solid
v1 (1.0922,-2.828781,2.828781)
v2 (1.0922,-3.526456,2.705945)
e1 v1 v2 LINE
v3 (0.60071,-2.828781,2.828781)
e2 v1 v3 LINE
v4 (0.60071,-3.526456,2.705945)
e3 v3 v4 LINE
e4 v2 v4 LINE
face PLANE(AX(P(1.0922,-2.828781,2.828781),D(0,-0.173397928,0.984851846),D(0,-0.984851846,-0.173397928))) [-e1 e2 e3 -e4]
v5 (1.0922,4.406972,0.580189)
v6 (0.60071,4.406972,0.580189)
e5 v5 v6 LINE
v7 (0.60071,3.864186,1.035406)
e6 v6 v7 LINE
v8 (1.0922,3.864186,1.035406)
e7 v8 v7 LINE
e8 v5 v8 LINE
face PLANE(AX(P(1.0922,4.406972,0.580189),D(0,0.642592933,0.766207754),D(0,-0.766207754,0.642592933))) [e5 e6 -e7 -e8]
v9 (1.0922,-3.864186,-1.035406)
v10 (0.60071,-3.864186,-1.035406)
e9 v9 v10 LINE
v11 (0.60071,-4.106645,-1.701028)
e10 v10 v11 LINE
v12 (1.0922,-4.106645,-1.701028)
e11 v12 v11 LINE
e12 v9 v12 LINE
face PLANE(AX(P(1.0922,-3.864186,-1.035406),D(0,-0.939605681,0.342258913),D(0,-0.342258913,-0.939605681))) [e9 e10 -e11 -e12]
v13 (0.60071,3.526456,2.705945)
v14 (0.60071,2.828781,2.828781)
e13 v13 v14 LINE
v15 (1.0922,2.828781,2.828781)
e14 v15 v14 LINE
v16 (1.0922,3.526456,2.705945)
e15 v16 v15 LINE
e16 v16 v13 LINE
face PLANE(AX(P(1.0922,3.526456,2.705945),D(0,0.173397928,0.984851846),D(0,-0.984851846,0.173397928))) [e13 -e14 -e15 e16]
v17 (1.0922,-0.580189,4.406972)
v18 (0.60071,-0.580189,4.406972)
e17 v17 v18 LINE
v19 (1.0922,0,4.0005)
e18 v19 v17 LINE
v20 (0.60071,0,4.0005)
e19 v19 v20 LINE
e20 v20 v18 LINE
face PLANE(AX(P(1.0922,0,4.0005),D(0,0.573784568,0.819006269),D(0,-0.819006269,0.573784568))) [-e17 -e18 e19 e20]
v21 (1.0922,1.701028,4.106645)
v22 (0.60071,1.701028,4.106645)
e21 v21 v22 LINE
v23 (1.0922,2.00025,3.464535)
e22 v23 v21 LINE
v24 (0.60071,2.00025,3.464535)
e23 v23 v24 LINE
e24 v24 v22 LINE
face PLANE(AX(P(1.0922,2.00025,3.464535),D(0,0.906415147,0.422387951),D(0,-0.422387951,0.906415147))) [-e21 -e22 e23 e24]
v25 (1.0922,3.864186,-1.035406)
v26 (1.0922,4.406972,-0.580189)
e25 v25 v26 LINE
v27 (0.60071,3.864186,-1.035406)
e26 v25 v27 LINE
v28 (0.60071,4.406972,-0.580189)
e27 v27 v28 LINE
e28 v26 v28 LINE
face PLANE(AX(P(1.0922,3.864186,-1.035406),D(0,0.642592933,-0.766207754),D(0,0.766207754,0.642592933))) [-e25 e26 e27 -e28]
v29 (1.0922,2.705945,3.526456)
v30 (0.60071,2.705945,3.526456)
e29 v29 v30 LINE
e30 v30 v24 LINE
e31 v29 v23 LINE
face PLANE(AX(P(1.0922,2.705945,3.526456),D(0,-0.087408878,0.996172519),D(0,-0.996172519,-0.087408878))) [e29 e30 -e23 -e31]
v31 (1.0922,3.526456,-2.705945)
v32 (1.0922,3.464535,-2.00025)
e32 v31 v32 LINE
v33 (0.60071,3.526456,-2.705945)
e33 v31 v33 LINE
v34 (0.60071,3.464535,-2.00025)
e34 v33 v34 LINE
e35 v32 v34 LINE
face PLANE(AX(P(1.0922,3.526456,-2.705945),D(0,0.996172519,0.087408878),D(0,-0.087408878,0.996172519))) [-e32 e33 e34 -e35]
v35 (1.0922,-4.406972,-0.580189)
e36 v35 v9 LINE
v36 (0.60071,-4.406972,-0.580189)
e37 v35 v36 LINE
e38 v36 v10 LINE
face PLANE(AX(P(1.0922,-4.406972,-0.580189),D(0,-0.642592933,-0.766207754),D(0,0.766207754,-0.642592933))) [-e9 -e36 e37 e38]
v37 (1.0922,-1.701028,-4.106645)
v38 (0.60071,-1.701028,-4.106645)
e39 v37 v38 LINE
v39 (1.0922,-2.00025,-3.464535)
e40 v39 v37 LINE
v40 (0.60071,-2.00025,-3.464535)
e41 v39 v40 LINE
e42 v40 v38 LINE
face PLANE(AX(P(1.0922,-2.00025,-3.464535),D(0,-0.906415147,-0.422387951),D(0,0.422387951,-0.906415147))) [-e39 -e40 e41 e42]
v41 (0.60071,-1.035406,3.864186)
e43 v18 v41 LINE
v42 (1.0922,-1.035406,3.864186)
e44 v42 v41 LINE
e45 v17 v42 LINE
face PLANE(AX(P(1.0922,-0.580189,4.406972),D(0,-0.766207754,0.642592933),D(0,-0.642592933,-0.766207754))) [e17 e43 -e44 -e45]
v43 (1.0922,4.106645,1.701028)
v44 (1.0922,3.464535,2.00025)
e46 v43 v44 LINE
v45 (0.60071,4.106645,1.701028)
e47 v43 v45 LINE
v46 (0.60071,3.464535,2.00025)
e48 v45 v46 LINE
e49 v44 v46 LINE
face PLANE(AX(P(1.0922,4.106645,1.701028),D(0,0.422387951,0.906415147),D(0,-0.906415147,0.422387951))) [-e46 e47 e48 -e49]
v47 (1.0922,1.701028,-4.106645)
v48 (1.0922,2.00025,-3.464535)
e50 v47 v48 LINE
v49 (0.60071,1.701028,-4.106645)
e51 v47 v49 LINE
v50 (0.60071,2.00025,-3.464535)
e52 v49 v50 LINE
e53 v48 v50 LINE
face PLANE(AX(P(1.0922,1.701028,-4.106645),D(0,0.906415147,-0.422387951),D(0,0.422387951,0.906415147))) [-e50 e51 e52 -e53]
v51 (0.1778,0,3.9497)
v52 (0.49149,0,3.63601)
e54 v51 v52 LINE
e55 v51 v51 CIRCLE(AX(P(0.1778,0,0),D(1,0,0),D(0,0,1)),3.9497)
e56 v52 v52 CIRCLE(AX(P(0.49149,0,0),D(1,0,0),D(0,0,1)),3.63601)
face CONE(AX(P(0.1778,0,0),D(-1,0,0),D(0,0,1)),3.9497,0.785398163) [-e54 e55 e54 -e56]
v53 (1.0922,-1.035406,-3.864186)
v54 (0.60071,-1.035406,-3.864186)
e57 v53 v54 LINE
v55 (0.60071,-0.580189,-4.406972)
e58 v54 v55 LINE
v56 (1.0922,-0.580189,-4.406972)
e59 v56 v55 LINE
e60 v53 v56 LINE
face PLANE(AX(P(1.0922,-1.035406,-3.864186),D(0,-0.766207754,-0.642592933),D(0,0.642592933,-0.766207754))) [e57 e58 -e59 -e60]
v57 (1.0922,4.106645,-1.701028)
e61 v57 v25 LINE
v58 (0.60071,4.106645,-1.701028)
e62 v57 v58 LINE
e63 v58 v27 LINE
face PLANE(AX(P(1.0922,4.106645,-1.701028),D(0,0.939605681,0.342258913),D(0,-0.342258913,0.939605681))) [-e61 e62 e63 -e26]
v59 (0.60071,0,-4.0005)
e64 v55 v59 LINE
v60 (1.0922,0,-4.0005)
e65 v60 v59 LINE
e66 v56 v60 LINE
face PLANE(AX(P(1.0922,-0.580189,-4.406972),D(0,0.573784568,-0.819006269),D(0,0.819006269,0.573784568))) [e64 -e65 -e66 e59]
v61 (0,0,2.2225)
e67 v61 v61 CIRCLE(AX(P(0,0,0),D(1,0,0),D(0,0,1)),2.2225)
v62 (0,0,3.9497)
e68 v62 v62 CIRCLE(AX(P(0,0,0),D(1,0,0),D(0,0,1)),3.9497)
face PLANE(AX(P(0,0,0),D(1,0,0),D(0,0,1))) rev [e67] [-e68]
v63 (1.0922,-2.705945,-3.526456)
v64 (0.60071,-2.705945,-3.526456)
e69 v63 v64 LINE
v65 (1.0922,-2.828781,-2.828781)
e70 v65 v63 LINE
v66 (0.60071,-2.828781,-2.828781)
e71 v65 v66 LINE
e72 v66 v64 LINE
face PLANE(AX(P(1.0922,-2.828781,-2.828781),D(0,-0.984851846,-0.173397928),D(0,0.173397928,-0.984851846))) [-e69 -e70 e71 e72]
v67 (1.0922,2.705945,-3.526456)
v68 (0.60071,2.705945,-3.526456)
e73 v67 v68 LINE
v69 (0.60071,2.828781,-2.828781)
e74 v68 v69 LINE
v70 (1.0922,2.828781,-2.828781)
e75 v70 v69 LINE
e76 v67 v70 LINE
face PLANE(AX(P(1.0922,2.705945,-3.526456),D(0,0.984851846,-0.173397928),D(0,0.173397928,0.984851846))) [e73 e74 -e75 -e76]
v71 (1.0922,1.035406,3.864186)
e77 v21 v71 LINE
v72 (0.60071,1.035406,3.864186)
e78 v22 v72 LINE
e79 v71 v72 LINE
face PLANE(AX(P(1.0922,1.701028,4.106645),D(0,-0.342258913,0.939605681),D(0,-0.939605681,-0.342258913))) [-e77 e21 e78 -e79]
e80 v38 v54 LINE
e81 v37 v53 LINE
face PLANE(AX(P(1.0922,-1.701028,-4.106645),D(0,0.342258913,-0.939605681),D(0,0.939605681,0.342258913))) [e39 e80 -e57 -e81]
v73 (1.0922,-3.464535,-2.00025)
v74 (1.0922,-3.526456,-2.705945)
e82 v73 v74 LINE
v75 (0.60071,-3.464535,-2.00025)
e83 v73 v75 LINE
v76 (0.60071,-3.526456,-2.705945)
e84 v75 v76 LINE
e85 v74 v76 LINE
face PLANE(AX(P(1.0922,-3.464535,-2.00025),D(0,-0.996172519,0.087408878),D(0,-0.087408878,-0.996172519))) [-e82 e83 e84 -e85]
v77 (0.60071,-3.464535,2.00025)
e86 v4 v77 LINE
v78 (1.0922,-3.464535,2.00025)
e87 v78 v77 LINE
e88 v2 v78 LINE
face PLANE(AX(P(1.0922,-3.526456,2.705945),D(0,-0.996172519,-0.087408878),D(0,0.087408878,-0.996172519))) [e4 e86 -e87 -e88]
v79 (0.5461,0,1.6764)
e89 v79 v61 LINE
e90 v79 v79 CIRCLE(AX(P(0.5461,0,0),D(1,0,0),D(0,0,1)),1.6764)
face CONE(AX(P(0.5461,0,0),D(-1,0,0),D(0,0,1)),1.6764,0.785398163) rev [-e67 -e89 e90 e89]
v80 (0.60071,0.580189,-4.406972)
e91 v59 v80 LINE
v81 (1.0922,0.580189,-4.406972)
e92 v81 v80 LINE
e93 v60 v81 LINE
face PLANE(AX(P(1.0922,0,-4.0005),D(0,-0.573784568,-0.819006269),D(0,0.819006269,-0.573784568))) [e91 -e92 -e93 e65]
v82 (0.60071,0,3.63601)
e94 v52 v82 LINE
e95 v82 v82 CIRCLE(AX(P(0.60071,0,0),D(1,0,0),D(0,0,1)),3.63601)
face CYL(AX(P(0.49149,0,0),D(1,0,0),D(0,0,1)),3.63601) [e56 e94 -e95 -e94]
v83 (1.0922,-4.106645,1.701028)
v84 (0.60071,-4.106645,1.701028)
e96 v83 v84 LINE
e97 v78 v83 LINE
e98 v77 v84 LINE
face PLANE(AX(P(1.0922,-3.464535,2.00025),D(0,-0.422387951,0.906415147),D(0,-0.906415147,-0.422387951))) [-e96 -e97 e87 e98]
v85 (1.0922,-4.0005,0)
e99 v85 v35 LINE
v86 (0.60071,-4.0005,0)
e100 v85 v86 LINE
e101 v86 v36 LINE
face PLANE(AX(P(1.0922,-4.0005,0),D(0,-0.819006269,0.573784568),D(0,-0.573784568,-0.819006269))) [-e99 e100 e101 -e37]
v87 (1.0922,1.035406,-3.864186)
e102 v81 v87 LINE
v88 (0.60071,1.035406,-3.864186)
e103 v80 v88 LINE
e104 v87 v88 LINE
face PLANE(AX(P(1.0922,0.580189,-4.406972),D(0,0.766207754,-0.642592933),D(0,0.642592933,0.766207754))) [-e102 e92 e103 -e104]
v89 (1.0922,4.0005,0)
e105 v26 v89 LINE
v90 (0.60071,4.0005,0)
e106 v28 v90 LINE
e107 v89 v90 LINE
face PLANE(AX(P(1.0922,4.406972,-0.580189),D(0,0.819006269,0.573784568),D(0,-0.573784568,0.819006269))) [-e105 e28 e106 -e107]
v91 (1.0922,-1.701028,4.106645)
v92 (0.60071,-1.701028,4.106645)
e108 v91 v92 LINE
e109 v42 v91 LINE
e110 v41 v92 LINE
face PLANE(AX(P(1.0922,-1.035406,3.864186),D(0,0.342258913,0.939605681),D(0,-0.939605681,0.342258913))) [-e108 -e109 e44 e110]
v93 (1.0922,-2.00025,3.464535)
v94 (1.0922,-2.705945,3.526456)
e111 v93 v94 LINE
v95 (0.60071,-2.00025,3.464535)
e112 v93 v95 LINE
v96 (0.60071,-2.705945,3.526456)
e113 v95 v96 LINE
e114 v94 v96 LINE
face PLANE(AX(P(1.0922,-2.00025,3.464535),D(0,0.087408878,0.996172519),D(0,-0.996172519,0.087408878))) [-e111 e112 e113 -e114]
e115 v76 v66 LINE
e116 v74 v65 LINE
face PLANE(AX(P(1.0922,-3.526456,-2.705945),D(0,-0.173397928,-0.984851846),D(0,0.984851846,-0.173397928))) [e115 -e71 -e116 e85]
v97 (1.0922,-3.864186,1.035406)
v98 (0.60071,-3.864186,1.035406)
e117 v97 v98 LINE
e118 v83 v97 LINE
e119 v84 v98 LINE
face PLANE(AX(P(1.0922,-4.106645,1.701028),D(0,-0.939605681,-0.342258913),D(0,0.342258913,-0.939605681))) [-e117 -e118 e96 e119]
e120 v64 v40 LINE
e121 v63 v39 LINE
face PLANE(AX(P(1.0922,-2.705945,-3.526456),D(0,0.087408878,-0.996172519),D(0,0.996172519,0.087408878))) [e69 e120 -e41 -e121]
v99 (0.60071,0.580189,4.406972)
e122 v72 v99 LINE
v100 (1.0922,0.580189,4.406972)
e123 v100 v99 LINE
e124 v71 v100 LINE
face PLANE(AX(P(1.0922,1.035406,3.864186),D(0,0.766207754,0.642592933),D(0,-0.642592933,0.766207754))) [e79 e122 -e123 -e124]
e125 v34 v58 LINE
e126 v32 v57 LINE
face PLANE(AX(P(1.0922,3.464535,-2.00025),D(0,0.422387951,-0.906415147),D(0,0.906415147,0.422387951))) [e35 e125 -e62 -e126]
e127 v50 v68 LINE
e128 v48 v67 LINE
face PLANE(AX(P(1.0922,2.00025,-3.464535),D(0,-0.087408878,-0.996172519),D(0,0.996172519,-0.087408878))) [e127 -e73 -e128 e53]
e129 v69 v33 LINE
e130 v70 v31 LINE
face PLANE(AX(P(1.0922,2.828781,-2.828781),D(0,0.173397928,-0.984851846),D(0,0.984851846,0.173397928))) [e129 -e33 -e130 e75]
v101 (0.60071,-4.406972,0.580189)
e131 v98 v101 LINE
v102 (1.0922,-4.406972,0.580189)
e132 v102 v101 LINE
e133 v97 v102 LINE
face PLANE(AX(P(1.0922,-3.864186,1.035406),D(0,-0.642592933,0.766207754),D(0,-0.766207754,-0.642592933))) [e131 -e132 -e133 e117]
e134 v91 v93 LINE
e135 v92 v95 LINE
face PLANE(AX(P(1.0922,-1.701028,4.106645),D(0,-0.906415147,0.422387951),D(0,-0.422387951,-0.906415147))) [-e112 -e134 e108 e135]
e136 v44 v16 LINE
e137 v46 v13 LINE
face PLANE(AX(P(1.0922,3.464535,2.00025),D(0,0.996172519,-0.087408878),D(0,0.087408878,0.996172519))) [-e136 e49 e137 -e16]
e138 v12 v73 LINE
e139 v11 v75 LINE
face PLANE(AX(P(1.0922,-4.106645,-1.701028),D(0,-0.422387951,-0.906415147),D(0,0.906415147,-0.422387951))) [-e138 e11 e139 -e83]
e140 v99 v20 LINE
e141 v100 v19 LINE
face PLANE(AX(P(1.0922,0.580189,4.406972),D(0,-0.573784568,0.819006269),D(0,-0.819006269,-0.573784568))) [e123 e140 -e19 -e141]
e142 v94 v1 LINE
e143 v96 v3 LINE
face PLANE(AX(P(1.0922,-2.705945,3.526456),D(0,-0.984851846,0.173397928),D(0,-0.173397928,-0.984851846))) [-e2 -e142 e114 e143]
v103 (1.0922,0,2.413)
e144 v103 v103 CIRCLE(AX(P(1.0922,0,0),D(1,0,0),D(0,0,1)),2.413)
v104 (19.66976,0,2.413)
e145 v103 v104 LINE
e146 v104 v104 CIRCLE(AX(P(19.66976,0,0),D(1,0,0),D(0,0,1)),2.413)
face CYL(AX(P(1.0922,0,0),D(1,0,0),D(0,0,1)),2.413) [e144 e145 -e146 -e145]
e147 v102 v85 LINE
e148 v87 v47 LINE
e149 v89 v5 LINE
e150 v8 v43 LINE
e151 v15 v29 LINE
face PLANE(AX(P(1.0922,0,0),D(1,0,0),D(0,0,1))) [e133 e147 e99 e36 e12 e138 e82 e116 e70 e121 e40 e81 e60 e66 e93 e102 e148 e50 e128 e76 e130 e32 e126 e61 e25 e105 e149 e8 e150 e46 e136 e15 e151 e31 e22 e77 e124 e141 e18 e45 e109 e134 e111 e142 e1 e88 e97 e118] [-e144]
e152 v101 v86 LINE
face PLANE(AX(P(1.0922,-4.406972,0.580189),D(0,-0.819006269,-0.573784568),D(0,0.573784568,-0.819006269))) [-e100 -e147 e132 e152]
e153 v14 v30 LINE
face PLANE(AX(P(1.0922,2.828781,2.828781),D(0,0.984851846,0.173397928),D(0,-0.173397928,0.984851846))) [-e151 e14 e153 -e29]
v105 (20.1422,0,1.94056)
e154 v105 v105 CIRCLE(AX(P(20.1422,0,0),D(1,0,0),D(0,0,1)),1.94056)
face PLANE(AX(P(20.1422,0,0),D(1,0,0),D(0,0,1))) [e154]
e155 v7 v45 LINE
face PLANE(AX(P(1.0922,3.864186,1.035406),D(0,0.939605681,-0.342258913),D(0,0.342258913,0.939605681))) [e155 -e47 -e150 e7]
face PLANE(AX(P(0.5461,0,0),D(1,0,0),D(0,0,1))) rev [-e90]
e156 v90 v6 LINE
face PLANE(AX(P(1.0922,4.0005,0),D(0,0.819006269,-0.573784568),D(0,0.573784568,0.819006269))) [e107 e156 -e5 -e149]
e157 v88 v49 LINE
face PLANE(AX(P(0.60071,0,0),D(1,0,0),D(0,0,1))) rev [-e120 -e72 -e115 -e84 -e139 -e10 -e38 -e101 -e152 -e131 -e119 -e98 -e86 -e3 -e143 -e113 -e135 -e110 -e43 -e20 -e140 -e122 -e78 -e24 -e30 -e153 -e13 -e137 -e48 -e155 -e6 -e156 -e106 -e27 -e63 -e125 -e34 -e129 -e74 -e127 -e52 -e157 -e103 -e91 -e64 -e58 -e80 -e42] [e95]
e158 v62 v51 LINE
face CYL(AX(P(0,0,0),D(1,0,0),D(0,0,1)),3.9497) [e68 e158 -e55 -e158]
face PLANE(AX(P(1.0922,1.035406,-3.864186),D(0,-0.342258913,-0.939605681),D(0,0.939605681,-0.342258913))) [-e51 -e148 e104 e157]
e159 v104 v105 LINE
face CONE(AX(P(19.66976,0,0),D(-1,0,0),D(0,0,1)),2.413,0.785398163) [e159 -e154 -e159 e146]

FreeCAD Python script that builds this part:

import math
import FreeCAD as App
import Part
import Sketcher
Q = App.Units.Quantity


def add_polygon(sketch, points):
    """Adds a closed chain of lines whose ends are joined by coincident constraints."""
    first, n = sketch.GeometryCount, len(points)
    for a, b in zip(points, points[1:] + points[:1]):
        sketch.addGeometry(Part.LineSegment(App.Vector(*a, 0), App.Vector(*b, 0)), False)
    for i in range(n):
        sketch.addConstraint(Sketcher.Constraint("Coincident", first + i, 2, first + (i + 1) % n, 1))

doc = App.newDocument("Part")
body = doc.addObject("PartDesign::Body", "Body")

sketch1 = body.newObject("Sketcher::SketchObject", "Sketch")
sketch1.AttachmentSupport = (doc.getObject("XY_Plane"), [""])
sketch1.MapMode = "FlatFace"
add_polygon(sketch1, [(0, 3.95), (0, 2.22), (0.55, 1.68), (0.55, 0), (20.14, 0), (20.14, 1.94), (19.67, 2.41), (1.09, 2.41), (1.09, 4.45), (0.6, 4.45), (0.6, 3.64), (0.49, 3.64), (0.18, 3.95)])
sketch1.addConstraint(Sketcher.Constraint("Vertical", 0))
sketch1.addConstraint(Sketcher.Constraint("Vertical", 2))
sketch1.addConstraint(Sketcher.Constraint("Horizontal", 3))
sketch1.addConstraint(Sketcher.Constraint("Vertical", 4))
sketch1.addConstraint(Sketcher.Constraint("Horizontal", 6))
sketch1.addConstraint(Sketcher.Constraint("Vertical", 7))
sketch1.addConstraint(Sketcher.Constraint("Horizontal", 8))
sketch1.addConstraint(Sketcher.Constraint("Vertical", 9))
sketch1.addConstraint(Sketcher.Constraint("Horizontal", 10))
sketch1.addConstraint(Sketcher.Constraint("Horizontal", 12))
sketch1.addConstraint(Sketcher.Constraint("PointOnObject", 0, 2, -2))
sketch1.addConstraint(Sketcher.Constraint("PointOnObject", 2, 2, -1))
sketch1.addConstraint(Sketcher.Constraint("Parallel", 1, 5))
sketch1.addConstraint(Sketcher.Constraint("Parallel", 5, 11))
sketch1.addConstraint(Sketcher.Constraint("Angle", 1, Q("-45 deg")))
sketch1.addConstraint(Sketcher.Constraint("DistanceY", 7, 1, 7, 2, Q("0.08 in")))
sketch1.addConstraint(Sketcher.Constraint("DistanceX", 12, 2, 12, 1, Q("0.007 in")))
sketch1.addConstraint(Sketcher.Constraint("DistanceY", 0, 2, 0, 1, Q("0.068 in")))
sketch1.addConstraint(Sketcher.Constraint("DistanceY", 2, 2, 2, 1, Q("0.066 in")))
sketch1.addConstraint(Sketcher.Constraint("DistanceX", 6, 2, 4, 2, Q("0.75 in")))
sketch1.addConstraint(Sketcher.Constraint("DistanceX", 3, 1, 3, 2, Q("0.7715 in")))
sketch1.addConstraint(Sketcher.Constraint("DistanceX", 6, 2, 6, 1, Q("0.7314 in")))
sketch1.addConstraint(Sketcher.Constraint("DistanceX", 10, 2, 10, 1, Q("0.0043 in")))
sketch1.addConstraint(Sketcher.Constraint("DistanceY", 4, 1, 4, 2, Q("0.0764 in")))
sketch1.addConstraint(Sketcher.Constraint("DistanceX", -1, 1, 3, 2, Q("0.793 in")))
sketch1.addConstraint(Sketcher.Constraint("DistanceX", 8, 2, 8, 1, 0.49149))
revolution = body.newObject("PartDesign::Revolution", "Revolution")
revolution.Profile = sketch1
revolution.ReferenceAxis = (sketch1, ["H_Axis"])
revolution.Angle = 360

sketch2 = body.newObject("Sketcher::SketchObject", "Sketch001")
sketch2.AttachmentSupport = (doc.getObject("YZ_Plane"), [""])
sketch2.MapMode = "FlatFace"
sketch2.AttachmentOffset = App.Placement(App.Vector(0, 0, 0.043 * 25.4), App.Rotation())
sketch2.addGeometry(Part.LineSegment(App.Vector(4, 0, 0), App.Vector(4.4, -0.6, 0)), False)
sketch2.addGeometry(Part.ArcOfCircle(Part.Circle(App.Vector(0, 0, 0), App.Vector(0, 0, 1), 4.4), math.radians(-7.5), math.radians(7.5)), False)
sketch2.addGeometry(Part.LineSegment(App.Vector(4.4, 0.6, 0), App.Vector(4, 0, 0)), False)
sketch2.addConstraint(Sketcher.Constraint("Coincident", 0, 2, 1, 1))
sketch2.addConstraint(Sketcher.Constraint("Coincident", 1, 2, 2, 1))
sketch2.addConstraint(Sketcher.Constraint("Coincident", 2, 2, 0, 1))
sketch2.addConstraint(Sketcher.Constraint("Coincident", 1, 3, -1, 1))
sketch2.addConstraint(Sketcher.Constraint("PointOnObject", 2, 2, -1))
sketch2.addConstraint(Sketcher.Constraint("Vertical", 0, 2, 1, 2))
sketch2.addConstraint(Sketcher.Constraint("Radius", 1, Q("0.175 in")))
sketch2.addConstraint(Sketcher.Constraint("DistanceX", -1, 1, 2, 2, Q("0.1575 in")))
sketch2.addConstraint(Sketcher.Constraint("DistanceY", 0, 2, -1, 1, 0.580189))
pocket1 = body.newObject("PartDesign::Pocket", "Pocket")
pocket1.Profile = sketch2
pocket1.Length = 0.49149
doc.recompute()

polarpattern = body.newObject("PartDesign::PolarPattern", "PolarPattern")
polarpattern.Originals = [pocket1]
polarpattern.Axis = (doc.getObject("X_Axis"), [""])
polarpattern.Angle = 360
polarpattern.Occurrences = 24
body.Tip = polarpattern

doc.recompute()
